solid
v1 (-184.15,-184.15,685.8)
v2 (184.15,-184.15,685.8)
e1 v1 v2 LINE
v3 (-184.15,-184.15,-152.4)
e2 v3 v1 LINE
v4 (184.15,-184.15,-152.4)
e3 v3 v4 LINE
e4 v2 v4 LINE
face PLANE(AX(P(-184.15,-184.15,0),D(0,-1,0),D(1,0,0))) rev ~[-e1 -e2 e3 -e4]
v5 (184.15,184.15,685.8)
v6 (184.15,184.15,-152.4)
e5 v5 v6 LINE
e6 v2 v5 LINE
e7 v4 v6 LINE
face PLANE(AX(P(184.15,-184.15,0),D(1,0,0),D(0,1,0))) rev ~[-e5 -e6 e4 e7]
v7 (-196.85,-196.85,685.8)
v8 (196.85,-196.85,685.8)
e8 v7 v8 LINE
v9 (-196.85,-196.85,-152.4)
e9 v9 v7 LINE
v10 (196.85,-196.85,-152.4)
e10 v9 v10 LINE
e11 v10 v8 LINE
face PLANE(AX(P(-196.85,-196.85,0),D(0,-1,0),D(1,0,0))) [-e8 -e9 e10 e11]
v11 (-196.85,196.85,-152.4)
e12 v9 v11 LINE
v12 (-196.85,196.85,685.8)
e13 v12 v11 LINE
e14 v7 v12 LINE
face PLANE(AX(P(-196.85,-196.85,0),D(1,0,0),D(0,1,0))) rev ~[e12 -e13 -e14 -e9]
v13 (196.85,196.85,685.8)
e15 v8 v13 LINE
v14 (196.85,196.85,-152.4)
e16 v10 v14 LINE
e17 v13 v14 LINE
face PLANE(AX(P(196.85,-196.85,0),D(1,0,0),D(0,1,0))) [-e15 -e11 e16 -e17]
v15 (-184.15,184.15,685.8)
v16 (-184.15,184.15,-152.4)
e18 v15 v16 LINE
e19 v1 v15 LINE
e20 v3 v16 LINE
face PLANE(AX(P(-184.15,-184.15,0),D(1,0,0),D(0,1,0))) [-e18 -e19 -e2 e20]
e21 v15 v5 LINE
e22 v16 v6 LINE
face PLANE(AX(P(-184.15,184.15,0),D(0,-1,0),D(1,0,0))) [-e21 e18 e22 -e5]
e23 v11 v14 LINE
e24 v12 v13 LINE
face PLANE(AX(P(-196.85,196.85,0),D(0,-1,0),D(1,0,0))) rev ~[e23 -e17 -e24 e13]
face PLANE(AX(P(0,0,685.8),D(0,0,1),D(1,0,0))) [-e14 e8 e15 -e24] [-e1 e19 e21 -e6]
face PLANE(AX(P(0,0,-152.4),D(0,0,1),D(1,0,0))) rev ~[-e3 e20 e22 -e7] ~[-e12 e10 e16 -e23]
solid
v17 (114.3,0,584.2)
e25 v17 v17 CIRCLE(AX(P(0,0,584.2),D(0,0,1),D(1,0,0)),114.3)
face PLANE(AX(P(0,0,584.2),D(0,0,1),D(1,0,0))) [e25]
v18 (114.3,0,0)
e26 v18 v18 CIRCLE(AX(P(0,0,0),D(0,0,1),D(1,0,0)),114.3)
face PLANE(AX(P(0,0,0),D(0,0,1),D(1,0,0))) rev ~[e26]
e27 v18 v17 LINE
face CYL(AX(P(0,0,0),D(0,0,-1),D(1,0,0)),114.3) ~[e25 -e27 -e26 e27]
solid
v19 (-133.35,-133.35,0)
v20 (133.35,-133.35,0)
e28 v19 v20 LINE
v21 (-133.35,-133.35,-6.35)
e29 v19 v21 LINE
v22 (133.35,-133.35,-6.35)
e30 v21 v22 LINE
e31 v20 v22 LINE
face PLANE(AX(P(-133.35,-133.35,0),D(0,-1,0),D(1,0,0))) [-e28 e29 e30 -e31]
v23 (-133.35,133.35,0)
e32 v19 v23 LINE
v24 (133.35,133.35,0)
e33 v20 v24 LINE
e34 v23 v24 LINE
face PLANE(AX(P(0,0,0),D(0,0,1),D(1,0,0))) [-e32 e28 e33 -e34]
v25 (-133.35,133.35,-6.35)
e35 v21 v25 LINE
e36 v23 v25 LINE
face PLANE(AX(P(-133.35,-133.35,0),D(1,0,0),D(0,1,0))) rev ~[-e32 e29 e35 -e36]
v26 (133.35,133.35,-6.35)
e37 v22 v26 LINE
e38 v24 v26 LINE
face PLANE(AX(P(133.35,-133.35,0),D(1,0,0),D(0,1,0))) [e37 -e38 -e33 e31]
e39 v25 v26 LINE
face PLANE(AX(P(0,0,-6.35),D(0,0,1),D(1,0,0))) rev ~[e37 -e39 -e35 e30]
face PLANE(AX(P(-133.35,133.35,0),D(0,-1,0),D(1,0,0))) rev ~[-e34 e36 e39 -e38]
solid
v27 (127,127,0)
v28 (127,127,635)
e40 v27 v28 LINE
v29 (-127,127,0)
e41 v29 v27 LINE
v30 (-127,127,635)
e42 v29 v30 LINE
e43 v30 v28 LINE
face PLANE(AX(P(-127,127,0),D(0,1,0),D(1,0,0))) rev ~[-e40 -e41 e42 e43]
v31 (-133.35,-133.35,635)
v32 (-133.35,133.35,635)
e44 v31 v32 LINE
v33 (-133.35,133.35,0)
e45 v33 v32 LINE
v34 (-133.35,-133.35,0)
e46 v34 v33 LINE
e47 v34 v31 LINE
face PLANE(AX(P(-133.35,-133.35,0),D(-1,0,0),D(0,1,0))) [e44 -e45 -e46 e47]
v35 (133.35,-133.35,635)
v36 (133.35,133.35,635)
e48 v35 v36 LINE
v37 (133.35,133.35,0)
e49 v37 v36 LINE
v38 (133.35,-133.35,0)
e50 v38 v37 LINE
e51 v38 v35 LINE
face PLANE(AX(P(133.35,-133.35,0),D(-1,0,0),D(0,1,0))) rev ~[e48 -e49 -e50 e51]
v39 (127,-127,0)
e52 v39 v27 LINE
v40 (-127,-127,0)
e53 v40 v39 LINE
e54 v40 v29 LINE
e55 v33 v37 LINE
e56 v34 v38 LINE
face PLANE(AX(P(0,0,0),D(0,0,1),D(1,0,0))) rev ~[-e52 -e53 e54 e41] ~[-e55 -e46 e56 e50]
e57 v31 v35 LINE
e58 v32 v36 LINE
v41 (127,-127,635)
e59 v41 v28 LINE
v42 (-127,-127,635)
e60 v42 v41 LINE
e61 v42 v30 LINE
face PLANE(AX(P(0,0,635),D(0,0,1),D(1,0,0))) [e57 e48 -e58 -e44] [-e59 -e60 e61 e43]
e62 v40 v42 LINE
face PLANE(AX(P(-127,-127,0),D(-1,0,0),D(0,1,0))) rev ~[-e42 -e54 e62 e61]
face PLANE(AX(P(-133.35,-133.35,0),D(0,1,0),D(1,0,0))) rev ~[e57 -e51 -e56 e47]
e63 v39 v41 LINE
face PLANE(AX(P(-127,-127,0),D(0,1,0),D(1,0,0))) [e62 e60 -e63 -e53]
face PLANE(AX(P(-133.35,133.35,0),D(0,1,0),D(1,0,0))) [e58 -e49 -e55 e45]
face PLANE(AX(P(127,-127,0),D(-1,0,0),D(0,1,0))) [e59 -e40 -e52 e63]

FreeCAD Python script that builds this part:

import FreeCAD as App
import Part
import Sketcher

V = App.Vector
Q = App.Units.Quantity

doc = App.newDocument("Part")
params = doc.addObject("Spreadsheet::Sheet", "Params")
for row, (alias, value) in enumerate([
    ("sketch1_diameter", "9 in"),
    ("pad1_length", "23 in"),
    ("sketch2_width", "10 in"),
    ("sketch2_width2", "10.5 in"),
    ("pad2_length", "25 in"),
    ("sketch3_width", "10.5 in"),
    ("pad3_length", "0.25 in"),
    ("sketch4_width", "15.5 in"),
    ("sketch4_width2", "14.5 in"),
    ("pad4_length", "27 in"),
    ("pad4_length2", "6 in"),
], start=1):
    params.set(f"A{row}", alias)
    params.set(f"B{row}", "=" + value)
    params.setAlias(f"B{row}", alias)

body = doc.addObject("PartDesign::Body", "Body")

sketch1 = body.newObject("Sketcher::SketchObject", "Sketch")
sketch1.AttachmentSupport = (doc.getObject("XY_Plane"), [""])
sketch1.MapMode = "FlatFace"
sketch1.addGeometry(Part.Circle(V(0, 0, 0), V(0, 0, 1), 114), False)
sketch1.addConstraint(Sketcher.Constraint("Coincident", 0, 3, -1, 1))
sketch1.addConstraint(Sketcher.Constraint("Diameter", 0, Q("9 in")))
sketch1.setExpression("Constraints[1]", "Params.sketch1_diameter")
pad1 = body.newObject("PartDesign::Pad", "Pad")
pad1.Profile = sketch1
pad1.setExpression("Length", "Params.pad1_length")
body2 = doc.addObject("PartDesign::Body", "Body001")

sketch2 = body2.newObject("Sketcher::SketchObject", "Sketch001")
sketch2.AttachmentSupport = (doc.getObject("XY_Plane001"), [""])
sketch2.MapMode = "FlatFace"
sketch2.addGeometry(Part.LineSegment(V(-133, 133, 0), V(-133, -133, 0)), False)
sketch2.addGeometry(Part.LineSegment(V(-133, -133, 0), V(133, -133, 0)), False)
sketch2.addGeometry(Part.LineSegment(V(133, -133, 0), V(133, 133, 0)), False)
sketch2.addGeometry(Part.LineSegment(V(133, 133, 0), V(-133, 133, 0)), False)
sketch2.addGeometry(Part.LineSegment(V(127, -127, 0), V(-127, -127, 0)), False)
sketch2.addGeometry(Part.LineSegment(V(-127, -127, 0), V(-127, 127, 0)), False)
sketch2.addGeometry(Part.LineSegment(V(-127, 127, 0), V(127, 127, 0)), False)
sketch2.addGeometry(Part.LineSegment(V(127, 127, 0), V(127, -127, 0)), False)
sketch2.addConstraint(Sketcher.Constraint("Coincident", 0, 2, 1, 1))
sketch2.addConstraint(Sketcher.Constraint("Coincident", 1, 2, 2, 1))
sketch2.addConstraint(Sketcher.Constraint("Coincident", 2, 2, 3, 1))
sketch2.addConstraint(Sketcher.Constraint("Coincident", 3, 2, 0, 1))
sketch2.addConstraint(Sketcher.Constraint("Coincident", 4, 2, 5, 1))
sketch2.addConstraint(Sketcher.Constraint("Coincident", 5, 2, 6, 1))
sketch2.addConstraint(Sketcher.Constraint("Coincident", 6, 2, 7, 1))
sketch2.addConstraint(Sketcher.Constraint("Coincident", 7, 2, 4, 1))
sketch2.addConstraint(Sketcher.Constraint("Vertical", 0))
sketch2.addConstraint(Sketcher.Constraint("Horizontal", 1))
sketch2.addConstraint(Sketcher.Constraint("Vertical", 2))
sketch2.addConstraint(Sketcher.Constraint("Horizontal", 3))
sketch2.addConstraint(Sketcher.Constraint("Horizontal", 4))
sketch2.addConstraint(Sketcher.Constraint("Vertical", 5))
sketch2.addConstraint(Sketcher.Constraint("Horizontal", 6))
sketch2.addConstraint(Sketcher.Constraint("Vertical", 7))
sketch2.addConstraint(Sketcher.Constraint("Symmetric", 0, 2, 2, 2, -1, 1))
sketch2.addConstraint(Sketcher.Constraint("Symmetric", 4, 2, 6, 2, -1, 1))
sketch2.addConstraint(Sketcher.Constraint("Equal", 3, 0))
sketch2.addConstraint(Sketcher.Constraint("Equal", 6, 5))
sketch2.addConstraint(Sketcher.Constraint("DistanceX", 4, 2, 4, 1, Q("10 in")))
sketch2.addConstraint(Sketcher.Constraint("DistanceX", 1, 1, 1, 2, Q("10.5 in")))
sketch2.setExpression("Constraints[20]", "Params.sketch2_width")
sketch2.setExpression("Constraints[21]", "Params.sketch2_width2")
pad2 = body2.newObject("PartDesign::Pad", "Pad001")
pad2.Profile = sketch2
pad2.setExpression("Length", "Params.pad2_length")
body3 = doc.addObject("PartDesign::Body", "Body002")

sketch3 = body3.newObject("Sketcher::SketchObject", "Sketch002")
sketch3.AttachmentSupport = (doc.getObject("XY_Plane002"), [""])
sketch3.MapMode = "FlatFace"
sketch3.addGeometry(Part.LineSegment(V(-133, 133, 0), V(-133, -133, 0)), False)
sketch3.addGeometry(Part.LineSegment(V(-133, -133, 0), V(133, -133, 0)), False)
sketch3.addGeometry(Part.LineSegment(V(133, -133, 0), V(133, 133, 0)), False)
sketch3.addGeometry(Part.LineSegment(V(133, 133, 0), V(-133, 133, 0)), False)
sketch3.addConstraint(Sketcher.Constraint("Coincident", 0, 2, 1, 1))
sketch3.addConstraint(Sketcher.Constraint("Coincident", 1, 2, 2, 1))
sketch3.addConstraint(Sketcher.Constraint("Coincident", 2, 2, 3, 1))
sketch3.addConstraint(Sketcher.Constraint("Coincident", 3, 2, 0, 1))
sketch3.addConstraint(Sketcher.Constraint("Vertical", 0))
sketch3.addConstraint(Sketcher.Constraint("Horizontal", 1))
sketch3.addConstraint(Sketcher.Constraint("Vertical", 2))
sketch3.addConstraint(Sketcher.Constraint("Horizontal", 3))
sketch3.addConstraint(Sketcher.Constraint("Symmetric", 0, 2, 2, 2, -1, 1))
sketch3.addConstraint(Sketcher.Constraint("Equal", 3, 0))
sketch3.addConstraint(Sketcher.Constraint("DistanceX", 1, 1, 1, 2, Q("10.5 in")))
sketch3.setExpression("Constraints[10]", "Params.sketch3_width")
pad3 = body3.newObject("PartDesign::Pad", "Pad002")
pad3.Profile = sketch3
pad3.setExpression("Length", "Params.pad3_length")
pad3.Reversed = True
body4 = doc.addObject("PartDesign::Body", "Body003")

sketch4 = body4.newObject("Sketcher::SketchObject", "Sketch003")
sketch4.AttachmentSupport = (doc.getObject("XY_Plane003"), [""])
sketch4.MapMode = "FlatFace"
sketch4.addGeometry(Part.LineSegment(V(-197, 197, 0), V(-197, -197, 0)), False)
sketch4.addGeometry(Part.LineSegment(V(-197, -197, 0), V(197, -197, 0)), False)
sketch4.addGeometry(Part.LineSegment(V(197, -197, 0), V(197, 197, 0)), False)
sketch4.addGeometry(Part.LineSegment(V(197, 197, 0), V(-197, 197, 0)), False)
sketch4.addGeometry(Part.LineSegment(V(184, -184, 0), V(-184, -184, 0)), False)
sketch4.addGeometry(Part.LineSegment(V(-184, -184, 0), V(-184, 184, 0)), False)
sketch4.addGeometry(Part.LineSegment(V(-184, 184, 0), V(184, 184, 0)), False)
sketch4.addGeometry(Part.LineSegment(V(184, 184, 0), V(184, -184, 0)), False)
sketch4.addConstraint(Sketcher.Constraint("Coincident", 0, 2, 1, 1))
sketch4.addConstraint(Sketcher.Constraint("Coincident", 1, 2, 2, 1))
sketch4.addConstraint(Sketcher.Constraint("Coincident", 2, 2, 3, 1))
sketch4.addConstraint(Sketcher.Constraint("Coincident", 3, 2, 0, 1))
sketch4.addConstraint(Sketcher.Constraint("Coincident", 4, 2, 5, 1))
sketch4.addConstraint(Sketcher.Constraint("Coincident", 5, 2, 6, 1))
sketch4.addConstraint(Sketcher.Constraint("Coincident", 6, 2, 7, 1))
sketch4.addConstraint(Sketcher.Constraint("Coincident", 7, 2, 4, 1))
sketch4.addConstraint(Sketcher.Constraint("Vertical", 0))
sketch4.addConstraint(Sketcher.Constraint("Horizontal", 1))
sketch4.addConstraint(Sketcher.Constraint("Vertical", 2))
sketch4.addConstraint(Sketcher.Constraint("Horizontal", 3))
sketch4.addConstraint(Sketcher.Constraint("Horizontal", 4))
sketch4.addConstraint(Sketcher.Constraint("Vertical", 5))
sketch4.addConstraint(Sketcher.Constraint("Horizontal", 6))
sketch4.addConstraint(Sketcher.Constraint("Vertical", 7))
sketch4.addConstraint(Sketcher.Constraint("Symmetric", 0, 2, 2, 2, -1, 1))
sketch4.addConstraint(Sketcher.Constraint("Symmetric", 4, 2, 6, 2, -1, 1))
sketch4.addConstraint(Sketcher.Constraint("Equal", 3, 0))
sketch4.addConstraint(Sketcher.Constraint("Equal", 6, 5))
sketch4.addConstraint(Sketcher.Constraint("DistanceX", 1, 1, 1, 2, Q("15.5 in")))
sketch4.addConstraint(Sketcher.Constraint("DistanceX", 4, 2, 4, 1, Q("14.5 in")))
sketch4.setExpression("Constraints[20]", "Params.sketch4_width")
sketch4.setExpression("Constraints[21]", "Params.sketch4_width2")
pad4 = body4.newObject("PartDesign::Pad", "Pad003")
pad4.Profile = sketch4
pad4.Type = "TwoLengths"
pad4.setExpression("Length", "Params.pad4_length")
pad4.setExpression("Length2", "Params.pad4_length2")

doc.recompute()
